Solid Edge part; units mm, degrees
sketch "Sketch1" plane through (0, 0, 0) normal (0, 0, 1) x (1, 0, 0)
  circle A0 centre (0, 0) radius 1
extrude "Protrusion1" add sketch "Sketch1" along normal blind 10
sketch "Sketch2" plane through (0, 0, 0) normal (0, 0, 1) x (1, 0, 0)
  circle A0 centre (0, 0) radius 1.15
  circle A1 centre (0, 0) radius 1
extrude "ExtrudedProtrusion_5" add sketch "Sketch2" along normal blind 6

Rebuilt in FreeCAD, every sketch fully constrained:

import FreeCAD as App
import Part
import Sketcher

doc = App.newDocument("Part")
body = doc.addObject("PartDesign::Body", "Body")

# Sketch on XY plane
sketch1 = body.newObject("Sketcher::SketchObject", "Sketch")
sketch1.AttachmentSupport = (doc.getObject("XY_Plane"), [""])
sketch1.MapMode = "FlatFace"
sketch1.addGeometry(Part.Circle(App.Vector(0, 0, 0), App.Vector(0, 0, 1), 1), False)
sketch1.addConstraint([
    Sketcher.Constraint("Coincident", 0, 3, -1, 1),
    Sketcher.Constraint("Diameter", 0, 2.0),
])
pad1 = body.newObject("PartDesign::Pad", "Pad")
pad1.Profile = sketch1
pad1.Length = 10

# Sketch on XY plane
sketch2 = body.newObject("Sketcher::SketchObject", "Sketch001")
sketch2.AttachmentSupport = (doc.getObject("XY_Plane"), [""])
sketch2.MapMode = "FlatFace"
sketch2.addGeometry([
    Part.Circle(App.Vector(0, 0, 0), App.Vector(0, 0, 1), 1.1),
    Part.Circle(App.Vector(0, 0, 0), App.Vector(0, 0, 1), 1),
], False)
sketch2.addConstraint([
    Sketcher.Constraint("Coincident", 0, 3, -1, 1),
    Sketcher.Constraint("Coincident", 1, 3, -1, 1),
    Sketcher.Constraint("Diameter", 1, 2.0),
    Sketcher.Constraint("Diameter", 0, 2.3),
])
pad2 = body.newObject("PartDesign::Pad", "Pad001")
pad2.Profile = sketch2
pad2.Length = 6

doc.recompute()
